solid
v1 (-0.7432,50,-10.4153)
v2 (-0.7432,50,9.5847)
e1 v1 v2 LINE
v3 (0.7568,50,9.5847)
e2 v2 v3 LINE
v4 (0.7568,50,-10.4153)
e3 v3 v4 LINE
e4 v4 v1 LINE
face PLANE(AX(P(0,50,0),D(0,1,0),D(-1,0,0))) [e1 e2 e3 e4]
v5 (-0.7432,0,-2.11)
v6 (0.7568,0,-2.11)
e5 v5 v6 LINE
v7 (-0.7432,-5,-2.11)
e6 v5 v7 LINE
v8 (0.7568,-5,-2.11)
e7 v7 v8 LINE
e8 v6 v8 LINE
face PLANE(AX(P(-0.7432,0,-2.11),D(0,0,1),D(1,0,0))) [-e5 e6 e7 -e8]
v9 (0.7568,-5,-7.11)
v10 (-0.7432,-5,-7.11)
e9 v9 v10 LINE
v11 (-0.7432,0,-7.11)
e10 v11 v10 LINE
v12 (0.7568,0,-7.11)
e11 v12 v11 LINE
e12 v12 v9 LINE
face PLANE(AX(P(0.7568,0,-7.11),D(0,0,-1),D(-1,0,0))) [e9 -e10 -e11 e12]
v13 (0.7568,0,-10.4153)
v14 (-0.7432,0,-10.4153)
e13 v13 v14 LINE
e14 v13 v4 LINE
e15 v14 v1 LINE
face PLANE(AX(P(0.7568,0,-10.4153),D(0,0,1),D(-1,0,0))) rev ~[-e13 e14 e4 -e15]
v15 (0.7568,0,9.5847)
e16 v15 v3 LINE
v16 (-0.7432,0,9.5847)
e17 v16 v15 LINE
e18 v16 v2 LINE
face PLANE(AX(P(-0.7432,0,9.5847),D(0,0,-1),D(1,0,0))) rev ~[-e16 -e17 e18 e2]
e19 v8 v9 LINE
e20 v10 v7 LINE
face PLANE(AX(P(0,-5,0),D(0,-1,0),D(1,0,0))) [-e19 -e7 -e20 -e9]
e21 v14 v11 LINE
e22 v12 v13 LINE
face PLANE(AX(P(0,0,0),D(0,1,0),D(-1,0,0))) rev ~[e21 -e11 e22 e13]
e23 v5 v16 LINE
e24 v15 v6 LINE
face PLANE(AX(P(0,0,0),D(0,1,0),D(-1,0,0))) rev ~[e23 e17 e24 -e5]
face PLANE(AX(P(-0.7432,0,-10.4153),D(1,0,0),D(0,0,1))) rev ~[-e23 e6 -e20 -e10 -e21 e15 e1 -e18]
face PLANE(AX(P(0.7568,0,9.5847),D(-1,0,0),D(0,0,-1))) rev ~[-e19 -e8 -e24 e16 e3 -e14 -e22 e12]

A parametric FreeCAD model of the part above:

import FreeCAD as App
import Part
import Sketcher

V = App.Vector
Q = App.Units.Quantity


def add_polygon(sketch, points):
    """Adds a closed chain of lines whose ends are joined by coincident constraints."""
    first, n = sketch.GeometryCount, len(points)
    for a, b in zip(points, points[1:] + points[:1]):
        sketch.addGeometry(Part.LineSegment(App.Vector(*a, 0), App.Vector(*b, 0)), False)
    for i in range(n):
        sketch.addConstraint(Sketcher.Constraint("Coincident", first + i, 2, first + (i + 1) % n, 1))

doc = App.newDocument("Part")
params = doc.addObject("Spreadsheet::Sheet", "Params")
for row, (alias, value) in enumerate([
    ("sketch1_height", "20 mm"),
    ("sketch1_width", "1.5 mm"),
    ("pad1_length", "50 mm"),
    ("sketch2_height", "5 mm"),
    ("sketch2_width", "1.5 mm"),
    ("pad2_length", "5 mm"),
], start=1):
    params.set(f"A{row}", alias)
    params.set(f"B{row}", "=" + value)
    params.setAlias(f"B{row}", alias)

body = doc.addObject("PartDesign::Body", "Body")

sketch1 = body.newObject("Sketcher::SketchObject", "Sketch")
sketch1.AttachmentSupport = (doc.getObject("XZ_Plane"), [""])
sketch1.MapMode = "FlatFace"
add_polygon(sketch1, [(-0.7432, -10.4153), (-0.7432, 9.5847), (0.7568, 9.5847), (0.7568, -10.4153)])
sketch1.addConstraint(Sketcher.Constraint("Vertical", 0))
sketch1.addConstraint(Sketcher.Constraint("Horizontal", 1))
sketch1.addConstraint(Sketcher.Constraint("Vertical", 2))
sketch1.addConstraint(Sketcher.Constraint("Horizontal", 3))
sketch1.addConstraint(Sketcher.Constraint("DistanceY", 0, 1, 0, 2, Q("20 mm")))
sketch1.addConstraint(Sketcher.Constraint("DistanceX", 1, 1, 1, 2, Q("1.5 mm")))
sketch1.addConstraint(Sketcher.Constraint("DistanceX", 0, 2, -1, 1, Q("0.7432 mm")))
sketch1.addConstraint(Sketcher.Constraint("DistanceY", -1, 1, 0, 2, Q("9.5847 mm")))
sketch1.setExpression("Constraints[8]", "Params.sketch1_height")
sketch1.setExpression("Constraints[9]", "Params.sketch1_width")
pad1 = body.newObject("PartDesign::Pad", "Pad")
pad1.Profile = sketch1
pad1.setExpression("Length", "Params.pad1_length")
pad1.Reversed = True

sketch2 = body.newObject("Sketcher::SketchObject", "Sketch001")
sketch2.AttachmentSupport = (doc.getObject("XZ_Plane"), [""])
sketch2.MapMode = "FlatFace"
add_polygon(sketch2, [(-0.7432, -2.11), (-0.7432, -7.11), (0.7568, -7.11), (0.7568, -2.11)])
sketch2.addConstraint(Sketcher.Constraint("Vertical", 0))
sketch2.addConstraint(Sketcher.Constraint("Horizontal", 1))
sketch2.addConstraint(Sketcher.Constraint("Vertical", 2))
sketch2.addConstraint(Sketcher.Constraint("Horizontal", 3))
sketch2.addConstraint(Sketcher.Constraint("DistanceY", 0, 2, 0, 1, Q("5 mm")))
sketch2.addConstraint(Sketcher.Constraint("DistanceX", 1, 1, 1, 2, Q("1.5 mm")))
sketch2.addConstraint(Sketcher.Constraint("DistanceY", 0, 2, -1, 1, Q("7.11 mm")))
sketch2.addConstraint(Sketcher.Constraint("DistanceX", 0, 2, -1, 1, Q("0.7432 mm")))
sketch2.setExpression("Constraints[8]", "Params.sketch2_height")
sketch2.setExpression("Constraints[9]", "Params.sketch2_width")
pad2 = body.newObject("PartDesign::Pad", "Pad001")
pad2.Profile = sketch2
pad2.setExpression("Length", "Params.pad2_length")

doc.recompute()
